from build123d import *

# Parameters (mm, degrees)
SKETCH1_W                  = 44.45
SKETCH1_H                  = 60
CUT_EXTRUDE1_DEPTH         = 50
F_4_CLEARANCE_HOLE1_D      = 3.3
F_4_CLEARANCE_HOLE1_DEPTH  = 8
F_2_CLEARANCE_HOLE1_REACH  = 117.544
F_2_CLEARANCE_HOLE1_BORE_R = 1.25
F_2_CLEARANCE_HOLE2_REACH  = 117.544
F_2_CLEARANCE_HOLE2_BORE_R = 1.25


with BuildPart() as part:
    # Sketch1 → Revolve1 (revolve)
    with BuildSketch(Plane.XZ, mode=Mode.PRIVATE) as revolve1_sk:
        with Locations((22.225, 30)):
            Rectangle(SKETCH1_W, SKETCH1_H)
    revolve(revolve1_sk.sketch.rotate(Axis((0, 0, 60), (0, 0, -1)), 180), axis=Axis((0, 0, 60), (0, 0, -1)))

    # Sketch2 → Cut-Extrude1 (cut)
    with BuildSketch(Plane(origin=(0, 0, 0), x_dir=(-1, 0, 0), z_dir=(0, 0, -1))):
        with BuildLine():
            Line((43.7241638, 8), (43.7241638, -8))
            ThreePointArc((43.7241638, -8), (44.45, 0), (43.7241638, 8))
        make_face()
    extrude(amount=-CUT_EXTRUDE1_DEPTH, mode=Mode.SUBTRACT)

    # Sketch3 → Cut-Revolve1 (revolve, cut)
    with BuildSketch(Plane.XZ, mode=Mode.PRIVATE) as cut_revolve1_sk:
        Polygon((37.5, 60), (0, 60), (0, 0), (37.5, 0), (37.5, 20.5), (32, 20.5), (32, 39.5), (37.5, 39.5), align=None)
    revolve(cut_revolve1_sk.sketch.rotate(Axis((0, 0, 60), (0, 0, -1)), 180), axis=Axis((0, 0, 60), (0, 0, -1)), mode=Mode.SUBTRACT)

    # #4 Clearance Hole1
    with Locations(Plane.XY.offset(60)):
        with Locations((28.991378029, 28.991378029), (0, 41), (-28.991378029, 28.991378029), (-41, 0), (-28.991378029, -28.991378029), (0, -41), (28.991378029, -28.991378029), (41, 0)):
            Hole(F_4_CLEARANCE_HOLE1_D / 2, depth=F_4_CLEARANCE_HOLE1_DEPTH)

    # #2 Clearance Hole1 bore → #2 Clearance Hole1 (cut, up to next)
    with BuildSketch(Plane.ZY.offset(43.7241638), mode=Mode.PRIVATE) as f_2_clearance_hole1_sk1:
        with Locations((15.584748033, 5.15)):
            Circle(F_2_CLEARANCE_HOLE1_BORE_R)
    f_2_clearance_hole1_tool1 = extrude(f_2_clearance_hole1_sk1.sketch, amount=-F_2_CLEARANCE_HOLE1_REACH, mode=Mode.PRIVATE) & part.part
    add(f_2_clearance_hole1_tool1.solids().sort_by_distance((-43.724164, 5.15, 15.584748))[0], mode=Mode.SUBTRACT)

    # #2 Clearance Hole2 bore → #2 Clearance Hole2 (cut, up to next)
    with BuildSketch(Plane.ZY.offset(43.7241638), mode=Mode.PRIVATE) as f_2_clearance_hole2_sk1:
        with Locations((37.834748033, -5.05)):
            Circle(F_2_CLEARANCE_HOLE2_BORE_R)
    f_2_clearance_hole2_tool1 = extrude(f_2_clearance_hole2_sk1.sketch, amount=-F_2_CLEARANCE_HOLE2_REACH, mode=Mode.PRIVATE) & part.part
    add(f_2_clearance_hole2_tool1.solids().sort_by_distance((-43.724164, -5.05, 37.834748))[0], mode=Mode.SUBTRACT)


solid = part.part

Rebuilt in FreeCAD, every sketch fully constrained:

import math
import FreeCAD as App
import Part
import Sketcher

V = App.Vector
Q = App.Units.Quantity


def add_polygon(sketch, points):
    """Adds a closed chain of lines whose ends are joined by coincident constraints."""
    first, n = sketch.GeometryCount, len(points)
    for a, b in zip(points, points[1:] + points[:1]):
        sketch.addGeometry(Part.LineSegment(App.Vector(*a, 0), App.Vector(*b, 0)), False)
    for i in range(n):
        sketch.addConstraint(Sketcher.Constraint("Coincident", first + i, 2, first + (i + 1) % n, 1))

doc = App.newDocument("Part")
body = doc.addObject("PartDesign::Body", "Body")

sketch1 = doc.addObject("Sketcher::SketchObject", "Sketch")
body.addObject(sketch1)
sketch1.AttachmentSupport = (doc.XZ_Plane, [""])
sketch1.MapMode = "FlatFace"
add_polygon(sketch1, [(0, 60), (0, 0), (44.45, 0), (44.45, 60)])
sketch1.addConstraint([
    Sketcher.Constraint("Vertical", 0),
    Sketcher.Constraint("Horizontal", 1),
    Sketcher.Constraint("Vertical", 2),
    Sketcher.Constraint("Horizontal", 3),
    Sketcher.Constraint("Coincident", 0, 2, -1, 1),
    Sketcher.Constraint("DistanceY", 0, 2, 0, 1, Q("60 mm")),
    Sketcher.Constraint("DistanceX", 1, 1, 1, 2, Q("44.45 mm")),
])
revolution = doc.addObject("PartDesign::Revolution", "Revolution")
body.addObject(revolution)
revolution.Profile = sketch1
revolution.ReferenceAxis = (sketch1, ["V_Axis"])
revolution.Angle = 360

sketch2 = doc.addObject("Sketcher::SketchObject", "Sketch001")
body.addObject(sketch2)
sketch2.AttachmentSupport = (doc.XY_Plane, [""])
sketch2.MapMode = "FlatFace"
sketch2.addGeometry([
    Part.LineSegment(V(-43.724164, 8, 0), V(-43.724164, -8, 0)),
    Part.ArcOfCircle(Part.Circle(V(0, 0, 0), V(0, 0, 1), 44.45), math.radians(169.631551), math.radians(190.368449)),
], False)
sketch2.addConstraint([
    Sketcher.Constraint("Coincident", 0, 1, 1, 1),
    Sketcher.Constraint("Coincident", 1, 2, 0, 2),
    Sketcher.Constraint("Vertical", 0),
    Sketcher.Constraint("Coincident", 1, 3, -1, 1),
    Sketcher.Constraint("DistanceY", 0, 2, 0, 1, Q("16 mm")),
    Sketcher.Constraint("Radius", 1, Q("44.45 mm")),
])
pocket1 = doc.addObject("PartDesign::Pocket", "Pocket")
body.addObject(pocket1)
pocket1.Profile = sketch2
pocket1.Length = 50
pocket1.Reversed = True

sketch3 = doc.addObject("Sketcher::SketchObject", "Sketch002")
body.addObject(sketch3)
sketch3.AttachmentSupport = (doc.XZ_Plane, [""])
sketch3.MapMode = "FlatFace"
add_polygon(sketch3, [(37.5, 60), (0, 60), (0, 0), (37.5, 0), (37.5, 20.5), (32, 20.5), (32, 39.5), (37.5, 39.5)])
sketch3.addConstraint([
    Sketcher.Constraint("Horizontal", 0),
    Sketcher.Constraint("Vertical", 1),
    Sketcher.Constraint("Horizontal", 2),
    Sketcher.Constraint("Vertical", 3),
    Sketcher.Constraint("Horizontal", 4),
    Sketcher.Constraint("Vertical", 5),
    Sketcher.Constraint("Horizontal", 6),
    Sketcher.Constraint("Vertical", 7),
    Sketcher.Constraint("Coincident", 1, 2, -1, 1),
    Sketcher.Constraint("Vertical", 3, 2, 6, 2),
    Sketcher.Constraint("Equal", 3, 7),
    Sketcher.Constraint("DistanceY", 1, 2, 1, 1, Q("60 mm")),
    Sketcher.Constraint("DistanceY", 5, 1, 5, 2, Q("19 mm")),
    Sketcher.Constraint("DistanceX", 0, 2, 0, 1, Q("37.5 mm")),
    Sketcher.Constraint("DistanceX", 4, 2, 4, 1, Q("5.5 mm")),
])
groove = doc.addObject("PartDesign::Groove", "Groove")
body.addObject(groove)
groove.Profile = sketch3
groove.ReferenceAxis = (sketch3, ["V_Axis"])
groove.Angle = 360

sketch4 = doc.addObject("Sketcher::SketchObject", "Sketch003")
body.addObject(sketch4)
sketch4.AttachmentSupport = (doc.XY_Plane, [""])
sketch4.MapMode = "FlatFace"
sketch4.AttachmentOffset = App.Placement(V(0, 0, 60), App.Rotation())
sketch4.addGeometry([
    Part.Circle(V(28.991378, 28.991378, 0), V(0, 0, 1), 1.65),
    Part.Circle(V(0, 41, 0), V(0, 0, 1), 1.65),
    Part.Circle(V(-28.991378, 28.991378, 0), V(0, 0, 1), 1.65),
    Part.Circle(V(-41, 0, 0), V(0, 0, 1), 1.65),
    Part.Circle(V(-28.991378, -28.991378, 0), V(0, 0, 1), 1.65),
    Part.Circle(V(0, -41, 0), V(0, 0, 1), 1.65),
    Part.Circle(V(28.991378, -28.991378, 0), V(0, 0, 1), 1.65),
    Part.Circle(V(41, 0, 0), V(0, 0, 1), 1.65),
], False)
sketch4.addConstraint([
    Sketcher.Constraint("Equal", 0, 1),
    Sketcher.Constraint("Equal", 1, 2),
    Sketcher.Constraint("Equal", 2, 3),
    Sketcher.Constraint("Equal", 3, 4),
    Sketcher.Constraint("Equal", 4, 5),
    Sketcher.Constraint("Equal", 5, 6),
    Sketcher.Constraint("Equal", 6, 7),
    Sketcher.Constraint("Symmetric", 0, 3, 4, 3, -1, 1),
    Sketcher.Constraint("Symmetric", 1, 3, 5, 3, -1, 1),
    Sketcher.Constraint("Symmetric", 2, 3, 6, 3, -1, 1),
    Sketcher.Constraint("Symmetric", 3, 3, 7, 3, -1, 1),
    Sketcher.Constraint("Symmetric", 0, 3, 2, 3, -2),
    Sketcher.Constraint("PointOnObject", 1, 3, -2),
    Sketcher.Constraint("PointOnObject", 3, 3, -1),
    Sketcher.Constraint("Diameter", 0, Q("3.3 mm")),
    Sketcher.Constraint("DistanceY", -1, 1, 1, 3, Q("41 mm")),
    Sketcher.Constraint("DistanceX", 3, 3, -1, 1, Q("41 mm")),
    Sketcher.Constraint("DistanceX", -1, 1, 0, 3, Q("28.991378 mm")),
    Sketcher.Constraint("DistanceY", -1, 1, 0, 3, Q("28.991378 mm")),
])
doc.recompute()
hole = doc.addObject("PartDesign::Hole", "Hole")
body.addObject(hole)
hole.Profile = sketch4
hole.ThreadType = "None"
hole.Diameter = 3.3
hole.DepthType = "Dimension"
hole.Depth = 8
hole.DrillPoint = "Flat"

sketch5 = doc.addObject("Sketcher::SketchObject", "Sketch004")
body.addObject(sketch5)
sketch5.AttachmentSupport = (doc.YZ_Plane, [""])
sketch5.MapMode = "FlatFace"
sketch5.AttachmentOffset = App.Placement(V(0, 0, -43.724164), App.Rotation())
sketch5.addGeometry(Part.Circle(V(5.15, 15.584748, 0), V(0, 0, 1), 1.25), False)
sketch5.addConstraint([
    Sketcher.Constraint("Diameter", 0, Q("2.5 mm")),
    Sketcher.Constraint("DistanceX", -1, 1, 0, 3, Q("5.15 mm")),
    Sketcher.Constraint("DistanceY", -1, 1, 0, 3, Q("15.584748 mm")),
])
pocket2 = doc.addObject("PartDesign::Pocket", "Pocket001")
body.addObject(pocket2)
pocket2.Profile = sketch5
pocket2.Type = "UpToFirst"
pocket2.Reversed = True

sketch6 = doc.addObject("Sketcher::SketchObject", "Sketch005")
body.addObject(sketch6)
sketch6.AttachmentSupport = (doc.YZ_Plane, [""])
sketch6.MapMode = "FlatFace"
sketch6.AttachmentOffset = App.Placement(V(0, 0, -43.724164), App.Rotation())
sketch6.addGeometry(Part.Circle(V(-5.05, 37.834748, 0), V(0, 0, 1), 1.25), False)
sketch6.addConstraint([
    Sketcher.Constraint("Diameter", 0, Q("2.5 mm")),
    Sketcher.Constraint("DistanceX", 0, 3, -1, 1, Q("5.05 mm")),
    Sketcher.Constraint("DistanceY", -1, 1, 0, 3, Q("37.834748 mm")),
])
pocket3 = doc.addObject("PartDesign::Pocket", "Pocket002")
body.addObject(pocket3)
pocket3.Profile = sketch6
pocket3.Type = "UpToFirst"
pocket3.Reversed = True

doc.recompute()
